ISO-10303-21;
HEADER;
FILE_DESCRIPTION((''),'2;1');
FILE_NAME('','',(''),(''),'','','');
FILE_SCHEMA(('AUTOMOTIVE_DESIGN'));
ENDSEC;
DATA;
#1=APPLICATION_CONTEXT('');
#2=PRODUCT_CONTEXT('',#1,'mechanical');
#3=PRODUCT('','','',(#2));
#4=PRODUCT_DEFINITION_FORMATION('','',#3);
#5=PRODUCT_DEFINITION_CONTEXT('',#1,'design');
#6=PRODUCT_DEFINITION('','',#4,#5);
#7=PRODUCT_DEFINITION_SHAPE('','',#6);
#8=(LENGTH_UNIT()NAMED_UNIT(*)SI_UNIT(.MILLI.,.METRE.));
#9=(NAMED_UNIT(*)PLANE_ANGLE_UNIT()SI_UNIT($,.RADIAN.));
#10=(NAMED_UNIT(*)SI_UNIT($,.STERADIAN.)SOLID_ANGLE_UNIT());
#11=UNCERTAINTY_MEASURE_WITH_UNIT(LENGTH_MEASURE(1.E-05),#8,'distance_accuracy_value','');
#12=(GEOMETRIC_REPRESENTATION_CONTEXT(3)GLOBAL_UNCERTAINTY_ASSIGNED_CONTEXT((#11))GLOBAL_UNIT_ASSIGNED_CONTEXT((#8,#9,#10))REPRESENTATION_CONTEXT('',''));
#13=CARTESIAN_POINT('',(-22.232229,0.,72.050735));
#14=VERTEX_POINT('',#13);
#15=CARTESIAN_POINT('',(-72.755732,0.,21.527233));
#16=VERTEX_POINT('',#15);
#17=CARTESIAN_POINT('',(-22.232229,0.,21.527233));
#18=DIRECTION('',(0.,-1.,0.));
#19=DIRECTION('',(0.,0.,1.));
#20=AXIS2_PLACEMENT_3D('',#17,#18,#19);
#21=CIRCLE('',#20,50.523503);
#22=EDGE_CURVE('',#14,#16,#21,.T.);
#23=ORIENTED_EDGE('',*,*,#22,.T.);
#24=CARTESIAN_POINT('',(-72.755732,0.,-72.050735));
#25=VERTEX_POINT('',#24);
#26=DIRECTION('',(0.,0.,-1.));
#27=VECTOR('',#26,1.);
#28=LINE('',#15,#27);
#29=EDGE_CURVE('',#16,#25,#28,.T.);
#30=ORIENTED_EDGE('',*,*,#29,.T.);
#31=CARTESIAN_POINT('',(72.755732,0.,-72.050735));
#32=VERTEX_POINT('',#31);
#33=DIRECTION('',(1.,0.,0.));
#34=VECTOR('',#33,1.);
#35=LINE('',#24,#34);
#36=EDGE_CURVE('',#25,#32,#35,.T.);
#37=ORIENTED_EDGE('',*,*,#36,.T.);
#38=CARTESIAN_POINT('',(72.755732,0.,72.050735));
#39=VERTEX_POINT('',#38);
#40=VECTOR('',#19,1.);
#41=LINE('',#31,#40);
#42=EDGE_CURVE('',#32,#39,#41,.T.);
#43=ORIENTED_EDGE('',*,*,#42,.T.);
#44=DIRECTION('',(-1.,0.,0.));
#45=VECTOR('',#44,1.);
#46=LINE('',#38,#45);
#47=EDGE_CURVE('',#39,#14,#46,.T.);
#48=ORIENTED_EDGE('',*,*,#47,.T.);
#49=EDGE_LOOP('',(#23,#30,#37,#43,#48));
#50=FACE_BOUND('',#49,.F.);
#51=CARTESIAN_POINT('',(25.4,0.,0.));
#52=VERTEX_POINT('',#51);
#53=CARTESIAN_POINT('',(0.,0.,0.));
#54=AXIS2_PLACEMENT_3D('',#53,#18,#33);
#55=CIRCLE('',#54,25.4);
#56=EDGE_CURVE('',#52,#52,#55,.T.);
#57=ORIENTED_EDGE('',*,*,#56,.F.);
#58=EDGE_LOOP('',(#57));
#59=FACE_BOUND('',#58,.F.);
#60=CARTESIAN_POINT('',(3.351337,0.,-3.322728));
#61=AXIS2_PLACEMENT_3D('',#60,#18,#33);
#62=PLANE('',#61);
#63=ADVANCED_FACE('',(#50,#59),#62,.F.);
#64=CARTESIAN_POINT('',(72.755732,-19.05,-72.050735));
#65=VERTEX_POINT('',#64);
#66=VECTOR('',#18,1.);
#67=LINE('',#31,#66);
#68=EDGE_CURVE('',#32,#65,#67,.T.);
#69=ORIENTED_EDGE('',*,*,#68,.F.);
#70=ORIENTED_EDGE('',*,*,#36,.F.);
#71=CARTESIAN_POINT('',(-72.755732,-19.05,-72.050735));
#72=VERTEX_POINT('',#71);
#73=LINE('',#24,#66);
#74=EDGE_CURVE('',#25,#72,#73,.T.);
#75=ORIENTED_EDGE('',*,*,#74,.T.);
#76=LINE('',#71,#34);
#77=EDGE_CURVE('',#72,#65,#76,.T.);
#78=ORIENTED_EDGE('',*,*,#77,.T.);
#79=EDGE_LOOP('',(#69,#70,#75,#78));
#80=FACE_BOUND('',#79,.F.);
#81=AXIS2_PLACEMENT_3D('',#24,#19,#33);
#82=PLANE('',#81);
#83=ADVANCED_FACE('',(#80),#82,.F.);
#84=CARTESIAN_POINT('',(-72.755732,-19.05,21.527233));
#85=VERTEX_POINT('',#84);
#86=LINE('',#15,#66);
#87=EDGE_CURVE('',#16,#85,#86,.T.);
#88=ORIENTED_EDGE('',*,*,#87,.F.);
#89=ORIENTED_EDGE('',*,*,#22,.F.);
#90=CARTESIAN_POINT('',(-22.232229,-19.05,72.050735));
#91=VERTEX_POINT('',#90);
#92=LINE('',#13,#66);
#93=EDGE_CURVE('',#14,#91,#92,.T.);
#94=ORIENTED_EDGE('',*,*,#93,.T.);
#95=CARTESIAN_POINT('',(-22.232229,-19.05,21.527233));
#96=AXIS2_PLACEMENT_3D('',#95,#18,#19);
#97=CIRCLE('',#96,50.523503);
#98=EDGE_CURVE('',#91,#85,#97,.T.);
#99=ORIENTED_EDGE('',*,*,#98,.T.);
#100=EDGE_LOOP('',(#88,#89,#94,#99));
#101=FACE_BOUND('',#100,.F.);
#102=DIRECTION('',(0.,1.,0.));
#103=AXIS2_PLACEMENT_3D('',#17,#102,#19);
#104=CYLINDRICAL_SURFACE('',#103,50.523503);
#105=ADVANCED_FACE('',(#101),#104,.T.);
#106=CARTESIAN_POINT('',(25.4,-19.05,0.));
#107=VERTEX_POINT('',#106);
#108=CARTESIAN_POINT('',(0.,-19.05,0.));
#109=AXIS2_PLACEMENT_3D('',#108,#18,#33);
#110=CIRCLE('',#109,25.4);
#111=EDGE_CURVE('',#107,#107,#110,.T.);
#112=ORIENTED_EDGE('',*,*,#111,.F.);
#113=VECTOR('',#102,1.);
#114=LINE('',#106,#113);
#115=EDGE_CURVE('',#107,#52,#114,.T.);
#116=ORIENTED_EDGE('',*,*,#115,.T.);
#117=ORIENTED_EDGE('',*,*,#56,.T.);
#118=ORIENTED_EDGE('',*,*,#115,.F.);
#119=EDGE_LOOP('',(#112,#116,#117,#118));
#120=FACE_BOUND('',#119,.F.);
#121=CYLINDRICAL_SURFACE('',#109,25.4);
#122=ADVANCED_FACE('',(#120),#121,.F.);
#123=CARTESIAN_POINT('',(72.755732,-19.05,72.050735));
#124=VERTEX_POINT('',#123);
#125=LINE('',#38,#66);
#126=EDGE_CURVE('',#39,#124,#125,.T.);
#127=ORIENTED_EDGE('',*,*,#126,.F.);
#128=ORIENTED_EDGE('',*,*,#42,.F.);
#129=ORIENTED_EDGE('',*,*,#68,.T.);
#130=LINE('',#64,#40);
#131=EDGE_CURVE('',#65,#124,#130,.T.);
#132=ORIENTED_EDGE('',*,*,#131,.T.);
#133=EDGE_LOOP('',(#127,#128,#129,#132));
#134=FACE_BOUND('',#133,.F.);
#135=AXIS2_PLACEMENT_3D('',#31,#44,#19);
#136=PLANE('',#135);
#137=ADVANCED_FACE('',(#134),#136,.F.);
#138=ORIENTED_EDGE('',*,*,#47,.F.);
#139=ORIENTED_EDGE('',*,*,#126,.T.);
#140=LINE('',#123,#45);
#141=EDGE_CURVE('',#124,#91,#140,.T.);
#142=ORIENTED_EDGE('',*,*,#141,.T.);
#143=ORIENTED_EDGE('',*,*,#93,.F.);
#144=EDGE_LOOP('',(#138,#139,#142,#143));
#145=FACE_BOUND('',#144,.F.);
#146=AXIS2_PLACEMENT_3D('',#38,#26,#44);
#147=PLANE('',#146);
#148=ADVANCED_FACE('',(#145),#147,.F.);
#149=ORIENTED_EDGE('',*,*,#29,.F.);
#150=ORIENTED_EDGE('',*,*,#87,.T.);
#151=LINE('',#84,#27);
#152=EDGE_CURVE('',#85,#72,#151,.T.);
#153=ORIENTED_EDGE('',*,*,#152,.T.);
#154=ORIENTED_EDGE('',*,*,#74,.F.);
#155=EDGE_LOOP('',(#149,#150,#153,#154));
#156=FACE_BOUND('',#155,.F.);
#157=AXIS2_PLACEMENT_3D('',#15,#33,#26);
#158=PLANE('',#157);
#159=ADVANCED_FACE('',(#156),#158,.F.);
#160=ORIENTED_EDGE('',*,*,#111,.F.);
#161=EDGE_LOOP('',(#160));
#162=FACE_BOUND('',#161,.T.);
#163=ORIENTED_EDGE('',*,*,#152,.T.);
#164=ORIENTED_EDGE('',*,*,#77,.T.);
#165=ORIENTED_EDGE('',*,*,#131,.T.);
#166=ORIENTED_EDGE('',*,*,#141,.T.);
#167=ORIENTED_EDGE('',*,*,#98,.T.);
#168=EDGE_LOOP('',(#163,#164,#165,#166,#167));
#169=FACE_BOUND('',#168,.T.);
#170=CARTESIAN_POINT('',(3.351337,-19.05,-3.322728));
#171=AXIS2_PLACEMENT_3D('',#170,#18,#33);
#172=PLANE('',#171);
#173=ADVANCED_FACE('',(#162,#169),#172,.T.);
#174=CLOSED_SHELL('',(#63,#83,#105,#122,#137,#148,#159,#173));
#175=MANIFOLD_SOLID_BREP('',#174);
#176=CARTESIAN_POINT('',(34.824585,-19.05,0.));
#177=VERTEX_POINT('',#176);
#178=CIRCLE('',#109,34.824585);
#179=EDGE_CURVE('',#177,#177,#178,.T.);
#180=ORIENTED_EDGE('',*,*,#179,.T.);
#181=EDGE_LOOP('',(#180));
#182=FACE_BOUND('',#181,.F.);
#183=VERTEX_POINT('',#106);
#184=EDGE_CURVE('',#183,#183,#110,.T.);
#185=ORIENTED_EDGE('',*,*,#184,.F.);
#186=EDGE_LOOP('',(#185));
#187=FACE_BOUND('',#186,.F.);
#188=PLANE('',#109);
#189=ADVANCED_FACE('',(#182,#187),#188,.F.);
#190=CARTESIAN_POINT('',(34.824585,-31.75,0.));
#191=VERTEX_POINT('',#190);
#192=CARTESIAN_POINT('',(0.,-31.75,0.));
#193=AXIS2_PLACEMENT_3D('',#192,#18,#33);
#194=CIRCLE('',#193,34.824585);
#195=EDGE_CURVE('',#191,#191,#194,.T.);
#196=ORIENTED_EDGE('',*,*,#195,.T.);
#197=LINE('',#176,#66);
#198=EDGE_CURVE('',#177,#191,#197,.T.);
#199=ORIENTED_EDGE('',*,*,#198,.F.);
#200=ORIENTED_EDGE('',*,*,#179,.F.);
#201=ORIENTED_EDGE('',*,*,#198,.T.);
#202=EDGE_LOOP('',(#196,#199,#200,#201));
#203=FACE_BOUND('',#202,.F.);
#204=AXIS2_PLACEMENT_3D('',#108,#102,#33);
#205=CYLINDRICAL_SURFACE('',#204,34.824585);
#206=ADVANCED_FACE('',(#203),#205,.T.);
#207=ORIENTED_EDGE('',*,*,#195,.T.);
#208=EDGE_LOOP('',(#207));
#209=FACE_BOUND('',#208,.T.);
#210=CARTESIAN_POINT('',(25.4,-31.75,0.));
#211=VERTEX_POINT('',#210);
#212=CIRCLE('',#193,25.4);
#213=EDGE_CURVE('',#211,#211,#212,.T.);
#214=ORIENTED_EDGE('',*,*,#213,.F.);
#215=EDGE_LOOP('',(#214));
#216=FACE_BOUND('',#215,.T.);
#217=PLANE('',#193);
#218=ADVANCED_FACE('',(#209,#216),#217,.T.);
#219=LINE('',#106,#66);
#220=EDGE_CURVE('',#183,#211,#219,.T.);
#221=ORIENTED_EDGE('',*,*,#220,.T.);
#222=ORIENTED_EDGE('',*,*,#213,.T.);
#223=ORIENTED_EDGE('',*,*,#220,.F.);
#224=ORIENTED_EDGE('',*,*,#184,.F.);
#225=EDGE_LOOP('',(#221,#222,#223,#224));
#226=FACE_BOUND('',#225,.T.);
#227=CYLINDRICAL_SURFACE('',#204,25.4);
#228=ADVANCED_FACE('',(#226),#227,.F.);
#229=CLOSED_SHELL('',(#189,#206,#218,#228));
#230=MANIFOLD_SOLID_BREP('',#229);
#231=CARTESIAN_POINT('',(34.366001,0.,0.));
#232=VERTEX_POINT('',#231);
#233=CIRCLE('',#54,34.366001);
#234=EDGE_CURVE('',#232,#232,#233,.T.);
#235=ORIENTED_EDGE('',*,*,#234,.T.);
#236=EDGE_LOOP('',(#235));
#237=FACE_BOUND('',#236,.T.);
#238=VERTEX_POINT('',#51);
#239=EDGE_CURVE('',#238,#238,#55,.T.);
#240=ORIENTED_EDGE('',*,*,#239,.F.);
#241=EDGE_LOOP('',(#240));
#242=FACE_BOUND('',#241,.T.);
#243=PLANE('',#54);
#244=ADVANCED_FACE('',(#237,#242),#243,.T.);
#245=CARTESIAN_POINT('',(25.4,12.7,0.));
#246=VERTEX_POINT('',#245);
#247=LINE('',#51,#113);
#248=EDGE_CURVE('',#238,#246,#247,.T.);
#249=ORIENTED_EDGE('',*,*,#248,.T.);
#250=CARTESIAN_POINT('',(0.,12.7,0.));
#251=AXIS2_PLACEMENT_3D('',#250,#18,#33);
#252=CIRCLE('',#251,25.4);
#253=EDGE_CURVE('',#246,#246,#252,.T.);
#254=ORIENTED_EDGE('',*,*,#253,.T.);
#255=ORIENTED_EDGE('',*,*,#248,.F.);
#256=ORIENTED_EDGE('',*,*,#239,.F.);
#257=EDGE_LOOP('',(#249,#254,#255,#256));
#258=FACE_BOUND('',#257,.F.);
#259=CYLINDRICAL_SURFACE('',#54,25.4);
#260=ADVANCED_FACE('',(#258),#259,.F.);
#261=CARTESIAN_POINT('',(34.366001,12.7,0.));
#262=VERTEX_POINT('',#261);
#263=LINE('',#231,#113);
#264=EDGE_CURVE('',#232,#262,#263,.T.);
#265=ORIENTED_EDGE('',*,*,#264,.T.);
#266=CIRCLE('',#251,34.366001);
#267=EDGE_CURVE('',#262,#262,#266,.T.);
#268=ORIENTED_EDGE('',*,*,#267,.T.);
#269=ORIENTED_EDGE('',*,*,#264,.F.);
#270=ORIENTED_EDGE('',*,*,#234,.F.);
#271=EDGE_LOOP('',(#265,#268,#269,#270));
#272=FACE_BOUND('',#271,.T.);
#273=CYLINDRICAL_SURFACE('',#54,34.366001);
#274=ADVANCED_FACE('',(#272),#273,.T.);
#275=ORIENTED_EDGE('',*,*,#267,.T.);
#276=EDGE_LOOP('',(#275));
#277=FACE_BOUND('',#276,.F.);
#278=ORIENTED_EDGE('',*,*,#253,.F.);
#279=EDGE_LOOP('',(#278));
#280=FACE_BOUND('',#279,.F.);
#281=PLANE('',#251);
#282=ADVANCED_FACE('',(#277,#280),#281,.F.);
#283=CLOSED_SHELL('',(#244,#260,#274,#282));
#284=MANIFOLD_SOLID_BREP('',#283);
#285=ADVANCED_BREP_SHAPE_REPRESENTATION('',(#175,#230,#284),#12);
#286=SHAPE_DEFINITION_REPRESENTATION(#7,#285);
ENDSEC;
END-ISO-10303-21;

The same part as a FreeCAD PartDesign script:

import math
import FreeCAD as App
import Part
import Sketcher
from FreeCAD import Vector
Q = App.Units.Quantity

doc = App.newDocument("Part")
body = doc.addObject("PartDesign::Body", "Body")

# Sketch on XZ plane
sketch1 = body.newObject("Sketcher::SketchObject", "Sketch")
sketch1.AttachmentSupport = (doc.getObject("XZ_Plane"), [""])
sketch1.MapMode = "FlatFace"
sketch1.addGeometry([
    Part.LineSegment(Vector(73, 72, 0), Vector(-22, 72, 0)),  # 0
    Part.ArcOfCircle(Part.Circle(Vector(-22, 22, 0), Vector(0, 0, 1), 51), math.radians(90), math.radians(180)),  # 1
    Part.LineSegment(Vector(-73, 22, 0), Vector(-73, -72, 0)),  # 2
    Part.LineSegment(Vector(-73, -72, 0), Vector(73, -72, 0)),  # 3
    Part.LineSegment(Vector(73, -72, 0), Vector(73, 72, 0)),  # 4
], False)
sketch1.addConstraint([
    Sketcher.Constraint("Tangent", 0, 2, 1, 1),
    Sketcher.Constraint("Tangent", 1, 2, 2, 1),
    Sketcher.Constraint("Coincident", 2, 2, 3, 1),
    Sketcher.Constraint("Coincident", 3, 2, 4, 1),
    Sketcher.Constraint("Coincident", 4, 2, 0, 1),
    Sketcher.Constraint("Horizontal", 0),
    Sketcher.Constraint("Vertical", 2),
    Sketcher.Constraint("Horizontal", 3),
    Sketcher.Constraint("Vertical", 4),
    Sketcher.Constraint("Symmetric", 2, 2, 4, 2, -1, 1),
    Sketcher.Constraint("Radius", 1, Q("50.523503 mm")),
    Sketcher.Constraint("DistanceX", 0, 2, 0, 1, Q("94.987961 mm")),
    Sketcher.Constraint("DistanceY", 4, 1, 4, 2, Q("144.101471 mm")),
])
pad1 = body.newObject("PartDesign::Pad", "Pad")
pad1.Profile = sketch1
pad1.Length = Q("0.75 in")

# Sketch on XZ plane
sketch2 = body.newObject("Sketcher::SketchObject", "Sketch001")
sketch2.AttachmentSupport = (doc.getObject("XZ_Plane"), [""])
sketch2.MapMode = "FlatFace"
sketch2.AttachmentOffset = App.Placement(Vector(0, 0, 0.75 * 25.4), App.Rotation())
sketch2.addGeometry(Part.Circle(Vector(0, 0, 0), Vector(0, 0, 1), 25), False)
sketch2.addConstraint([
    Sketcher.Constraint("Coincident", 0, 3, -1, 1),
    Sketcher.Constraint("Diameter", 0, Q("2 in")),
])
pocket1 = body.newObject("PartDesign::Pocket", "Pocket")
pocket1.Profile = sketch2
pocket1.Type = "ThroughAll"
body2 = doc.addObject("PartDesign::Body", "Body001")

# Sketch on XZ plane
sketch3 = body2.newObject("Sketcher::SketchObject", "Sketch002")
sketch3.AttachmentSupport = (doc.getObject("XZ_Plane001"), [""])
sketch3.MapMode = "FlatFace"
sketch3.AttachmentOffset = App.Placement(Vector(0, 0, 0.75 * 25.4), App.Rotation())
sketch3.addGeometry([
    Part.Circle(Vector(0, 0, 0), Vector(0, 0, 1), 35),
    Part.Circle(Vector(0, 0, 0), Vector(0, 0, 1), 25),
], False)
sketch3.addConstraint([
    Sketcher.Constraint("Coincident", 0, 3, -1, 1),
    Sketcher.Constraint("Coincident", 1, 3, -1, 1),
    Sketcher.Constraint("Diameter", 1, Q("2 in")),
    Sketcher.Constraint("Diameter", 0, Q("69.649171 mm")),
])
pad2 = body2.newObject("PartDesign::Pad", "Pad001")
pad2.Profile = sketch3
pad2.Length = Q("0.5 in")
body3 = doc.addObject("PartDesign::Body", "Body002")

# Sketch on XZ plane
sketch4 = body3.newObject("Sketcher::SketchObject", "Sketch003")
sketch4.AttachmentSupport = (doc.getObject("XZ_Plane002"), [""])
sketch4.MapMode = "FlatFace"
sketch4.addGeometry([
    Part.Circle(Vector(0, 0, 0), Vector(0, 0, 1), 34),
    Part.Circle(Vector(0, 0, 0), Vector(0, 0, 1), 25),
], False)
sketch4.addConstraint([
    Sketcher.Constraint("Coincident", 0, 3, -1, 1),
    Sketcher.Constraint("Coincident", 1, 3, -1, 1),
    Sketcher.Constraint("Diameter", 1, Q("2 in")),
    Sketcher.Constraint("Diameter", 0, Q("68.732001 mm")),
])
pad3 = body3.newObject("PartDesign::Pad", "Pad002")
pad3.Profile = sketch4
pad3.Length = Q("0.5 in")
pad3.Reversed = True

doc.recompute()
